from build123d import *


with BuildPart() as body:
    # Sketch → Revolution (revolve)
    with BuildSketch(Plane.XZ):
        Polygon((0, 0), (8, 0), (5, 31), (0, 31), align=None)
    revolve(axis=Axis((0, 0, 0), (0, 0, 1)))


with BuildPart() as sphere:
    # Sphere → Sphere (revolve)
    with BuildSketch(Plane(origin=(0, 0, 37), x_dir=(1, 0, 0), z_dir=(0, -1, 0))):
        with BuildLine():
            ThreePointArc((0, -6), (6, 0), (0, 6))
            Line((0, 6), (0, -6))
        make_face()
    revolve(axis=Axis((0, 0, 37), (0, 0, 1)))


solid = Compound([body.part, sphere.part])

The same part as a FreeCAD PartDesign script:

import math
import FreeCAD as App
import Part
import Sketcher
Q = App.Units.Quantity

doc = App.newDocument("Part")
body = doc.addObject("PartDesign::Body", "Body")

# Sketch on XZ plane
sketch1 = body.newObject("Sketcher::SketchObject", "Sketch")
sketch1.AttachmentSupport = (doc.getObject("XZ_Plane"), [""])
sketch1.MapMode = "FlatFace"
sketch1.addGeometry([
    Part.LineSegment(App.Vector(0, 0, 0), App.Vector(8, 0, 0)),
    Part.LineSegment(App.Vector(8, 0, 0), App.Vector(5, 31, 0)),
    Part.LineSegment(App.Vector(5, 31, 0), App.Vector(0, 31, 0)),
    Part.LineSegment(App.Vector(0, 31, 0), App.Vector(0, 0, 0)),
], False)
sketch1.addConstraint([
    Sketcher.Constraint("Coincident", 0, 2, 1, 1),
    Sketcher.Constraint("Coincident", 1, 2, 2, 1),
    Sketcher.Constraint("Coincident", 2, 2, 3, 1),
    Sketcher.Constraint("Coincident", 3, 2, 0, 1),
    Sketcher.Constraint("Horizontal", 0),
    Sketcher.Constraint("Horizontal", 2),
    Sketcher.Constraint("Vertical", 3),
    Sketcher.Constraint("Coincident", 3, 2, -1, 1),
    Sketcher.Constraint("DistanceX", 0, 1, 0, 2, Q("8 mm")),
    Sketcher.Constraint("DistanceX", 2, 2, 2, 1, Q("5 mm")),
    Sketcher.Constraint("DistanceY", 3, 2, 3, 1, Q("31 mm")),
])
revolution = body.newObject("PartDesign::Revolution", "Revolution")
revolution.Profile = sketch1
revolution.ReferenceAxis = (sketch1, ["V_Axis"])
revolution.Angle = 360
body2 = doc.addObject("PartDesign::Body", "Body001")

# Sketch on XZ plane
sketch2 = body2.newObject("Sketcher::SketchObject", "Sketch001")
sketch2.AttachmentSupport = (doc.getObject("XZ_Plane001"), [""])
sketch2.MapMode = "FlatFace"
sketch2.addGeometry([
    Part.ArcOfCircle(Part.Circle(App.Vector(0, 37, 0), App.Vector(0, 0, 1), 6), math.radians(-90), math.radians(90)),
    Part.LineSegment(App.Vector(0, 43, 0), App.Vector(0, 31, 0)),
], False)
sketch2.addConstraint([
    Sketcher.Constraint("Coincident", 0, 1, 1, 2),
    Sketcher.Constraint("Coincident", 1, 1, 0, 2),
    Sketcher.Constraint("Vertical", 1),
    Sketcher.Constraint("PointOnObject", 0, 3, -2),
    Sketcher.Constraint("PointOnObject", 0, 1, -2),
    Sketcher.Constraint("Radius", 0, Q("6 mm")),
    Sketcher.Constraint("DistanceY", -1, 1, 0, 3, Q("37 mm")),
])
revolution2 = body2.newObject("PartDesign::Revolution", "Revolution001")
revolution2.Profile = sketch2
revolution2.ReferenceAxis = (sketch2, ["V_Axis"])
revolution2.Angle = 360

doc.recompute()
